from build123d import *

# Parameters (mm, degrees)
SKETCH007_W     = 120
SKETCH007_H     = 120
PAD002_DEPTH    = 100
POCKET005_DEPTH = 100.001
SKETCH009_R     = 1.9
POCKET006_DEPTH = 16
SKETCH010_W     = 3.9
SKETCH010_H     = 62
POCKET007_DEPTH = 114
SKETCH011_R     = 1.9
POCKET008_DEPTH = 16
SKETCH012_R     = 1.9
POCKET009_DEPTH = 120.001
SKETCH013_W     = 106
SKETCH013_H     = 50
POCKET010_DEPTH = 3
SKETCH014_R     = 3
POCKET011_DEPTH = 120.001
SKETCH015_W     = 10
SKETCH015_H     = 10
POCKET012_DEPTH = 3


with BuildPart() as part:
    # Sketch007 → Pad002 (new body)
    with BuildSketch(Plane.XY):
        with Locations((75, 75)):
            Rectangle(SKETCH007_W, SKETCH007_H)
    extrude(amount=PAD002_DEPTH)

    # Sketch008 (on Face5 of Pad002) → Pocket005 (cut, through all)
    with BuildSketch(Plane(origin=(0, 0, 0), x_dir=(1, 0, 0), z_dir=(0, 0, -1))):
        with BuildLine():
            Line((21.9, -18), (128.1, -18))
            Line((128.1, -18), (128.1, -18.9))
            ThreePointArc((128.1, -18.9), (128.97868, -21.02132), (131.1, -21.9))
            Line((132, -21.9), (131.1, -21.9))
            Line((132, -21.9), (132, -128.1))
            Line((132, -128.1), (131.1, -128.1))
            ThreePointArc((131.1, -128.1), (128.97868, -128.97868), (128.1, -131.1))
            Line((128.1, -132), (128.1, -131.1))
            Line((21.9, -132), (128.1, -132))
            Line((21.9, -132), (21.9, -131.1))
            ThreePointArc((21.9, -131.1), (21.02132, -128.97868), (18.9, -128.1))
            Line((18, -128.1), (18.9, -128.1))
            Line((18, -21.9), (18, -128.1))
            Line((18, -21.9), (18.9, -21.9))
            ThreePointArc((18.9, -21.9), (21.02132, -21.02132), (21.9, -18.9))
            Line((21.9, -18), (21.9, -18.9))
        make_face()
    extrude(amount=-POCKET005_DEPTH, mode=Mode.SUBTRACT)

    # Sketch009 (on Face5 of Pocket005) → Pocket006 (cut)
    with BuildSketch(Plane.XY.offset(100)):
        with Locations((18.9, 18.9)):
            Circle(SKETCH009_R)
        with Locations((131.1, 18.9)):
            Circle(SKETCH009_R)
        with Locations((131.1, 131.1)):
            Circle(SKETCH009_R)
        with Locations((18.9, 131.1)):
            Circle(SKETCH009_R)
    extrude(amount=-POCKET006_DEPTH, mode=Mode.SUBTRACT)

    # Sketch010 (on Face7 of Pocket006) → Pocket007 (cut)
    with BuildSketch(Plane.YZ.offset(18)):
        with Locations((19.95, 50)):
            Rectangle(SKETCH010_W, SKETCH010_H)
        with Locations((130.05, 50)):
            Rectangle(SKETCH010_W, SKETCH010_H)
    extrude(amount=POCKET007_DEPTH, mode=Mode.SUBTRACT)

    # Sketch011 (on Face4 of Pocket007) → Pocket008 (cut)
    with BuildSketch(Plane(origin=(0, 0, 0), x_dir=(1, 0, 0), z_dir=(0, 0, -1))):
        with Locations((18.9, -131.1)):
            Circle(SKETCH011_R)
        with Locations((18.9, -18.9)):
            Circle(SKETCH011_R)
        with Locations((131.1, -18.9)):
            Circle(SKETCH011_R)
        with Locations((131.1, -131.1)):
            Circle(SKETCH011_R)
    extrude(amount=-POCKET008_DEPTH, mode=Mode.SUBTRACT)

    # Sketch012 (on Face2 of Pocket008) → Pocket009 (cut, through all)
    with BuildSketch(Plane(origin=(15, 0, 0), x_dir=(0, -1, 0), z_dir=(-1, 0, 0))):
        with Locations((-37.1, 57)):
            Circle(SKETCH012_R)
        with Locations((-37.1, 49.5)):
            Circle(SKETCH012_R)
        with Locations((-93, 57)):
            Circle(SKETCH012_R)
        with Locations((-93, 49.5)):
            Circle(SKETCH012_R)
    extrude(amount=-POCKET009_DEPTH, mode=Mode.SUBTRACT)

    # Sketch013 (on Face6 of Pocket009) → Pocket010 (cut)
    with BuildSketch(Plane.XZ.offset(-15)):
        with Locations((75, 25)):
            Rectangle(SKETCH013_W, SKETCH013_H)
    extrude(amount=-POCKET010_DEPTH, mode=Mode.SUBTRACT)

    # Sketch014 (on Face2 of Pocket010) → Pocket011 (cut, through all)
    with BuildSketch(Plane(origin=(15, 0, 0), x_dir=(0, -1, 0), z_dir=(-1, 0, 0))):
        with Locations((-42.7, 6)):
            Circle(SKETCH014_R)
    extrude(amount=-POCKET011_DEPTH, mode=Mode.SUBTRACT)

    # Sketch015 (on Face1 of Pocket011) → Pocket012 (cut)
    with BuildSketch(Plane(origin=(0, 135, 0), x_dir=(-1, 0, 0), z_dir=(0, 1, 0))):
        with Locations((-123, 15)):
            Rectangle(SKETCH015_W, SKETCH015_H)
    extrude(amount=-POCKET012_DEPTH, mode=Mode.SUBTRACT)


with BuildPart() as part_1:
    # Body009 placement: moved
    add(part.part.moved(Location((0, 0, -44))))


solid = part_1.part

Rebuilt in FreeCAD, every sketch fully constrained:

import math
import FreeCAD as App
import Part
import Sketcher
from FreeCAD import Vector

doc = App.newDocument("Part")
body = doc.addObject("PartDesign::Body", "Body")

sketch1 = body.newObject("Sketcher::SketchObject", "Sketch")
sketch1.AttachmentSupport = (doc.getObject("XY_Plane"), [""])
sketch1.MapMode = "FlatFace"
sketch1.addGeometry([
    Part.LineSegment(Vector(15, 135, 0), Vector(15, 15, 0)),
    Part.LineSegment(Vector(15, 15, 0), Vector(135, 15, 0)),
    Part.LineSegment(Vector(135, 15, 0), Vector(135, 135, 0)),
    Part.LineSegment(Vector(135, 135, 0), Vector(15, 135, 0)),
], False)
sketch1.addConstraint([
    Sketcher.Constraint("Coincident", 0, 2, 1, 1),
    Sketcher.Constraint("Coincident", 1, 2, 2, 1),
    Sketcher.Constraint("Coincident", 2, 2, 3, 1),
    Sketcher.Constraint("Coincident", 3, 2, 0, 1),
    Sketcher.Constraint("Vertical", 0),
    Sketcher.Constraint("Horizontal", 1),
    Sketcher.Constraint("Vertical", 2),
    Sketcher.Constraint("Horizontal", 3),
    Sketcher.Constraint("Equal", 3, 0),
    Sketcher.Constraint("DistanceX", 1, 1, 1, 2, 120.0),
    Sketcher.Constraint("DistanceX", -1, 1, 0, 2, 15.0),
    Sketcher.Constraint("DistanceY", -1, 1, 0, 2, 15.0),
])
pad1 = body.newObject("PartDesign::Pad", "Pad")
pad1.Profile = sketch1
pad1.Length = 100

sketch2 = body.newObject("Sketcher::SketchObject", "Sketch001")
sketch2.AttachmentSupport = (doc.getObject("XY_Plane"), [""])
sketch2.MapMode = "FlatFace"
sketch2.addGeometry([
    Part.LineSegment(Vector(128.1, 18, 0), Vector(21.9, 18, 0)),
    Part.LineSegment(Vector(21.9, 18, 0), Vector(21.9, 18.9, 0)),
    Part.ArcOfCircle(Part.Circle(Vector(18.9, 18.9, 0), Vector(0, 0, 1), 3), math.radians(0), math.radians(90)),
    Part.LineSegment(Vector(18.9, 21.9, 0), Vector(18, 21.9, 0)),
    Part.LineSegment(Vector(18, 21.9, 0), Vector(18, 128.1, 0)),
    Part.LineSegment(Vector(18, 128.1, 0), Vector(18.9, 128.1, 0)),
    Part.ArcOfCircle(Part.Circle(Vector(18.9, 131.1, 0), Vector(0, 0, 1), 3), math.radians(-90), math.radians(0)),
    Part.LineSegment(Vector(21.9, 131.1, 0), Vector(21.9, 132, 0)),
    Part.LineSegment(Vector(21.9, 132, 0), Vector(128.1, 132, 0)),
    Part.LineSegment(Vector(128.1, 132, 0), Vector(128.1, 131.1, 0)),
    Part.ArcOfCircle(Part.Circle(Vector(131.1, 131.1, 0), Vector(0, 0, 1), 3), math.radians(-180), math.radians(-90)),
    Part.LineSegment(Vector(131.1, 128.1, 0), Vector(132, 128.1, 0)),
    Part.LineSegment(Vector(132, 128.1, 0), Vector(132, 21.9, 0)),
    Part.LineSegment(Vector(132, 21.9, 0), Vector(131.1, 21.9, 0)),
    Part.ArcOfCircle(Part.Circle(Vector(131.1, 18.9, 0), Vector(0, 0, 1), 3), math.radians(90), math.radians(180)),
    Part.LineSegment(Vector(128.1, 18.9, 0), Vector(128.1, 18, 0)),
], False)
sketch2.addConstraint([
    Sketcher.Constraint("Coincident", 0, 2, 1, 1),
    Sketcher.Constraint("Tangent", 1, 2, 2, 1),
    Sketcher.Constraint("Tangent", 2, 2, 3, 1),
    Sketcher.Constraint("Coincident", 3, 2, 4, 1),
    Sketcher.Constraint("Coincident", 4, 2, 5, 1),
    Sketcher.Constraint("Tangent", 5, 2, 6, 1),
    Sketcher.Constraint("Tangent", 6, 2, 7, 1),
    Sketcher.Constraint("Coincident", 7, 2, 8, 1),
    Sketcher.Constraint("Coincident", 8, 2, 9, 1),
    Sketcher.Constraint("Tangent", 9, 2, 10, 1),
    Sketcher.Constraint("Tangent", 10, 2, 11, 1),
    Sketcher.Constraint("Coincident", 11, 2, 12, 1),
    Sketcher.Constraint("Coincident", 12, 2, 13, 1),
    Sketcher.Constraint("Tangent", 13, 2, 14, 1),
    Sketcher.Constraint("Tangent", 14, 2, 15, 1),
    Sketcher.Constraint("Coincident", 15, 2, 0, 1),
    Sketcher.Constraint("Horizontal", 0),
    Sketcher.Constraint("Vertical", 1),
    Sketcher.Constraint("Horizontal", 3),
    Sketcher.Constraint("Vertical", 4),
    Sketcher.Constraint("Horizontal", 5),
    Sketcher.Constraint("Vertical", 7),
    Sketcher.Constraint("Horizontal", 8),
    Sketcher.Constraint("Vertical", 9),
    Sketcher.Constraint("Horizontal", 11),
    Sketcher.Constraint("Vertical", 12),
    Sketcher.Constraint("Horizontal", 13),
    Sketcher.Constraint("Vertical", 15),
    Sketcher.Constraint("Equal", 2, 6),
    Sketcher.Constraint("Equal", 6, 10),
    Sketcher.Constraint("Equal", 10, 14),
    Sketcher.Constraint("Horizontal", 6, 3, 10, 3),
    Sketcher.Constraint("Horizontal", 2, 3, 14, 3),
    Sketcher.Constraint("Vertical", 2, 3, 6, 3),
    Sketcher.Constraint("Vertical", 10, 3, 14, 3),
    Sketcher.Constraint("Equal", 5, 11),
    Sketcher.Constraint("Equal", 13, 1),
    Sketcher.Constraint("Equal", 8, 4),
    Sketcher.Constraint("Equal", 1, 7),
    Sketcher.Constraint("Radius", 2, 3.000001),
    Sketcher.Constraint("DistanceX", 0, 2, 0, 1, 106.2),
    Sketcher.Constraint("DistanceX", 3, 2, 3, 1, 0.9),
    Sketcher.Constraint("DistanceY", -1, 1, 0, 2, 18.0),
    Sketcher.Constraint("DistanceX", -1, 1, 3, 2, 18.0),
])
pocket1 = body.newObject("PartDesign::Pocket", "Pocket")
pocket1.Profile = sketch2
pocket1.Type = "ThroughAll"
pocket1.Reversed = True

sketch3 = body.newObject("Sketcher::SketchObject", "Sketch002")
sketch3.AttachmentSupport = (doc.getObject("XY_Plane"), [""])
sketch3.MapMode = "FlatFace"
sketch3.AttachmentOffset = App.Placement(Vector(0, 0, 100), App.Rotation())
sketch3.addGeometry([
    Part.Circle(Vector(18.9, 18.9, 0), Vector(0, 0, 1), 1.9),
    Part.Circle(Vector(131.1, 18.9, 0), Vector(0, 0, 1), 1.9),
    Part.Circle(Vector(131.1, 131.1, 0), Vector(0, 0, 1), 1.9),
    Part.Circle(Vector(18.9, 131.1, 0), Vector(0, 0, 1), 1.9),
], False)
sketch3.addConstraint([
    Sketcher.Constraint("Equal", 0, 1),
    Sketcher.Constraint("Equal", 1, 2),
    Sketcher.Constraint("Equal", 2, 3),
    Sketcher.Constraint("Horizontal", 0, 3, 1, 3),
    Sketcher.Constraint("Horizontal", 2, 3, 3, 3),
    Sketcher.Constraint("Vertical", 1, 3, 2, 3),
    Sketcher.Constraint("Vertical", 0, 3, 3, 3),
    Sketcher.Constraint("Diameter", 0, 3.8),
    Sketcher.Constraint("DistanceX", -1, 1, 0, 3, 18.9),
    Sketcher.Constraint("DistanceY", -1, 1, 0, 3, 18.9),
    Sketcher.Constraint("DistanceX", -1, 1, 1, 3, 131.1),
    Sketcher.Constraint("DistanceY", -1, 1, 2, 3, 131.1),
])
pocket2 = body.newObject("PartDesign::Pocket", "Pocket001")
pocket2.Profile = sketch3
pocket2.Length = 16

sketch4 = body.newObject("Sketcher::SketchObject", "Sketch003")
sketch4.AttachmentSupport = (doc.getObject("YZ_Plane"), [""])
sketch4.MapMode = "FlatFace"
sketch4.AttachmentOffset = App.Placement(Vector(0, 0, 18), App.Rotation())
sketch4.addGeometry([
    Part.LineSegment(Vector(18, 81, 0), Vector(18, 19, 0)),
    Part.LineSegment(Vector(18, 19, 0), Vector(21.9, 19, 0)),
    Part.LineSegment(Vector(21.9, 19, 0), Vector(21.9, 81, 0)),
    Part.LineSegment(Vector(21.9, 81, 0), Vector(18, 81, 0)),
    Part.LineSegment(Vector(128.1, 81, 0), Vector(128.1, 19, 0)),
    Part.LineSegment(Vector(128.1, 19, 0), Vector(132, 19, 0)),
    Part.LineSegment(Vector(132, 19, 0), Vector(132, 81, 0)),
    Part.LineSegment(Vector(132, 81, 0), Vector(128.1, 81, 0)),
], False)
sketch4.addConstraint([
    Sketcher.Constraint("Coincident", 0, 2, 1, 1),
    Sketcher.Constraint("Coincident", 1, 2, 2, 1),
    Sketcher.Constraint("Coincident", 2, 2, 3, 1),
    Sketcher.Constraint("Coincident", 3, 2, 0, 1),
    Sketcher.Constraint("Coincident", 4, 2, 5, 1),
    Sketcher.Constraint("Coincident", 5, 2, 6, 1),
    Sketcher.Constraint("Coincident", 6, 2, 7, 1),
    Sketcher.Constraint("Coincident", 7, 2, 4, 1),
    Sketcher.Constraint("Vertical", 0),
    Sketcher.Constraint("Horizontal", 1),
    Sketcher.Constraint("Vertical", 2),
    Sketcher.Constraint("Horizontal", 3),
    Sketcher.Constraint("Vertical", 4),
    Sketcher.Constraint("Horizontal", 5),
    Sketcher.Constraint("Vertical", 6),
    Sketcher.Constraint("Horizontal", 7),
    Sketcher.Constraint("Horizontal", 1, 2, 4, 2),
    Sketcher.Constraint("Horizontal", 3, 2, 6, 2),
    Sketcher.Constraint("Equal", 3, 5),
    Sketcher.Constraint("DistanceY", 0, 2, 0, 1, 62.0),
    Sketcher.Constraint("DistanceX", 1, 1, 1, 2, 3.9),
    Sketcher.Constraint("DistanceX", -1, 1, 0, 2, 18.0),
    Sketcher.Constraint("DistanceY", -1, 1, 0, 2, 19.0),
    Sketcher.Constraint("DistanceX", -1, 1, 5, 2, 132.0),
])
pocket3 = body.newObject("PartDesign::Pocket", "Pocket002")
pocket3.Profile = sketch4
pocket3.Length = 114
pocket3.Reversed = True

sketch5 = body.newObject("Sketcher::SketchObject", "Sketch004")
sketch5.AttachmentSupport = (doc.getObject("XY_Plane"), [""])
sketch5.MapMode = "FlatFace"
sketch5.addGeometry([
    Part.Circle(Vector(18.9, 131.1, 0), Vector(0, 0, 1), 1.9),
    Part.Circle(Vector(18.9, 18.9, 0), Vector(0, 0, 1), 1.9),
    Part.Circle(Vector(131.1, 18.9, 0), Vector(0, 0, 1), 1.9),
    Part.Circle(Vector(131.1, 131.1, 0), Vector(0, 0, 1), 1.9),
], False)
sketch5.addConstraint([
    Sketcher.Constraint("Equal", 0, 1),
    Sketcher.Constraint("Equal", 1, 2),
    Sketcher.Constraint("Equal", 2, 3),
    Sketcher.Constraint("Horizontal", 1, 3, 2, 3),
    Sketcher.Constraint("Horizontal", 0, 3, 3, 3),
    Sketcher.Constraint("Vertical", 0, 3, 1, 3),
    Sketcher.Constraint("Vertical", 2, 3, 3, 3),
    Sketcher.Constraint("Diameter", 0, 3.8),
    Sketcher.Constraint("DistanceX", -1, 1, 0, 3, 18.9),
    Sketcher.Constraint("DistanceY", -1, 1, 0, 3, 131.1),
    Sketcher.Constraint("DistanceY", -1, 1, 1, 3, 18.9),
    Sketcher.Constraint("DistanceX", -1, 1, 2, 3, 131.1),
])
pocket4 = body.newObject("PartDesign::Pocket", "Pocket003")
pocket4.Profile = sketch5
pocket4.Length = 16
pocket4.Reversed = True

sketch6 = body.newObject("Sketcher::SketchObject", "Sketch005")
sketch6.AttachmentSupport = (doc.getObject("YZ_Plane"), [""])
sketch6.MapMode = "FlatFace"
sketch6.AttachmentOffset = App.Placement(Vector(0, 0, 15), App.Rotation())
sketch6.addGeometry([
    Part.Circle(Vector(37.1, 57, 0), Vector(0, 0, 1), 1.9),
    Part.Circle(Vector(37.1, 49.5, 0), Vector(0, 0, 1), 1.9),
    Part.Circle(Vector(93, 57, 0), Vector(0, 0, 1), 1.9),
    Part.Circle(Vector(93, 49.5, 0), Vector(0, 0, 1), 1.9),
], False)
sketch6.addConstraint([
    Sketcher.Constraint("Equal", 0, 1),
    Sketcher.Constraint("Equal", 1, 2),
    Sketcher.Constraint("Equal", 2, 3),
    Sketcher.Constraint("Horizontal", 0, 3, 2, 3),
    Sketcher.Constraint("Horizontal", 1, 3, 3, 3),
    Sketcher.Constraint("Vertical", 0, 3, 1, 3),
    Sketcher.Constraint("Vertical", 2, 3, 3, 3),
    Sketcher.Constraint("Diameter", 0, 3.8),
    Sketcher.Constraint("DistanceY", -1, 1, 0, 3, 57.0),
    Sketcher.Constraint("DistanceX", -1, 1, 2, 3, 93.0),
    Sketcher.Constraint("DistanceX", -1, 1, 0, 3, 37.1),
    Sketcher.Constraint("DistanceY", -1, 1, 1, 3, 49.5),
])
pocket5 = body.newObject("PartDesign::Pocket", "Pocket004")
pocket5.Profile = sketch6
pocket5.Type = "ThroughAll"
pocket5.Reversed = True

sketch7 = body.newObject("Sketcher::SketchObject", "Sketch006")
sketch7.AttachmentSupport = (doc.getObject("XZ_Plane"), [""])
sketch7.MapMode = "FlatFace"
sketch7.AttachmentOffset = App.Placement(Vector(0, 0, -15), App.Rotation())
sketch7.addGeometry([
    Part.LineSegment(Vector(22, 50, 0), Vector(22, 0, 0)),
    Part.LineSegment(Vector(22, 0, 0), Vector(128, 0, 0)),
    Part.LineSegment(Vector(128, 0, 0), Vector(128, 50, 0)),
    Part.LineSegment(Vector(128, 50, 0), Vector(22, 50, 0)),
], False)
sketch7.addConstraint([
    Sketcher.Constraint("Coincident", 0, 2, 1, 1),
    Sketcher.Constraint("Coincident", 1, 2, 2, 1),
    Sketcher.Constraint("Coincident", 2, 2, 3, 1),
    Sketcher.Constraint("Coincident", 3, 2, 0, 1),
    Sketcher.Constraint("Vertical", 0),
    Sketcher.Constraint("Horizontal", 1),
    Sketcher.Constraint("Vertical", 2),
    Sketcher.Constraint("Horizontal", 3),
    Sketcher.Constraint("PointOnObject", 0, 2, -1),
    Sketcher.Constraint("DistanceX", 1, 1, 1, 2, 106.0),
    Sketcher.Constraint("DistanceY", 0, 2, 0, 1, 50.0),
    Sketcher.Constraint("DistanceX", -1, 1, 0, 2, 22.0),
])
pocket6 = body.newObject("PartDesign::Pocket", "Pocket005")
pocket6.Profile = sketch7
pocket6.Length = 3

sketch8 = body.newObject("Sketcher::SketchObject", "Sketch007")
sketch8.AttachmentSupport = (doc.getObject("YZ_Plane"), [""])
sketch8.MapMode = "FlatFace"
sketch8.AttachmentOffset = App.Placement(Vector(0, 0, 15), App.Rotation())
sketch8.addGeometry(Part.Circle(Vector(42.7, 6, 0), Vector(0, 0, 1), 3), False)
sketch8.addConstraint([
    Sketcher.Constraint("Diameter", 0, 6.0),
    Sketcher.Constraint("DistanceY", -1, 1, 0, 3, 6.0),
    Sketcher.Constraint("DistanceX", -1, 1, 0, 3, 42.7),
])
pocket7 = body.newObject("PartDesign::Pocket", "Pocket006")
pocket7.Profile = sketch8
pocket7.Type = "ThroughAll"
pocket7.Reversed = True

sketch9 = body.newObject("Sketcher::SketchObject", "Sketch008")
sketch9.AttachmentSupport = (doc.getObject("XZ_Plane"), [""])
sketch9.MapMode = "FlatFace"
sketch9.AttachmentOffset = App.Placement(Vector(0, 0, -135), App.Rotation())
sketch9.addGeometry([
    Part.LineSegment(Vector(128, 20, 0), Vector(128, 10, 0)),
    Part.LineSegment(Vector(128, 10, 0), Vector(118, 10, 0)),
    Part.LineSegment(Vector(118, 10, 0), Vector(118, 20, 0)),
    Part.LineSegment(Vector(118, 20, 0), Vector(128, 20, 0)),
], False)
sketch9.addConstraint([
    Sketcher.Constraint("Coincident", 0, 2, 1, 1),
    Sketcher.Constraint("Coincident", 1, 2, 2, 1),
    Sketcher.Constraint("Coincident", 2, 2, 3, 1),
    Sketcher.Constraint("Coincident", 3, 2, 0, 1),
    Sketcher.Constraint("Vertical", 0),
    Sketcher.Constraint("Horizontal", 1),
    Sketcher.Constraint("Vertical", 2),
    Sketcher.Constraint("Horizontal", 3),
    Sketcher.Constraint("Equal", 3, 0),
    Sketcher.Constraint("DistanceX", 1, 2, 1, 1, 10.0),
    Sketcher.Constraint("DistanceX", -1, 1, 0, 2, 128.0),
    Sketcher.Constraint("DistanceY", -1, 1, 0, 2, 10.0),
])
pocket8 = body.newObject("PartDesign::Pocket", "Pocket007")
pocket8.Profile = sketch9
pocket8.Length = 3
pocket8.Reversed = True
body2 = doc.addObject("PartDesign::Body", "Body001")
doc.recompute()

body.Placement = App.Placement(Vector(0, 0, -44), App.Rotation(Vector(0, 0, 1), 0))
boolean = body2.newObject("PartDesign::Boolean", "Boolean")
boolean.Type = "Fuse"
boolean.addObjects([body])

doc.recompute()
